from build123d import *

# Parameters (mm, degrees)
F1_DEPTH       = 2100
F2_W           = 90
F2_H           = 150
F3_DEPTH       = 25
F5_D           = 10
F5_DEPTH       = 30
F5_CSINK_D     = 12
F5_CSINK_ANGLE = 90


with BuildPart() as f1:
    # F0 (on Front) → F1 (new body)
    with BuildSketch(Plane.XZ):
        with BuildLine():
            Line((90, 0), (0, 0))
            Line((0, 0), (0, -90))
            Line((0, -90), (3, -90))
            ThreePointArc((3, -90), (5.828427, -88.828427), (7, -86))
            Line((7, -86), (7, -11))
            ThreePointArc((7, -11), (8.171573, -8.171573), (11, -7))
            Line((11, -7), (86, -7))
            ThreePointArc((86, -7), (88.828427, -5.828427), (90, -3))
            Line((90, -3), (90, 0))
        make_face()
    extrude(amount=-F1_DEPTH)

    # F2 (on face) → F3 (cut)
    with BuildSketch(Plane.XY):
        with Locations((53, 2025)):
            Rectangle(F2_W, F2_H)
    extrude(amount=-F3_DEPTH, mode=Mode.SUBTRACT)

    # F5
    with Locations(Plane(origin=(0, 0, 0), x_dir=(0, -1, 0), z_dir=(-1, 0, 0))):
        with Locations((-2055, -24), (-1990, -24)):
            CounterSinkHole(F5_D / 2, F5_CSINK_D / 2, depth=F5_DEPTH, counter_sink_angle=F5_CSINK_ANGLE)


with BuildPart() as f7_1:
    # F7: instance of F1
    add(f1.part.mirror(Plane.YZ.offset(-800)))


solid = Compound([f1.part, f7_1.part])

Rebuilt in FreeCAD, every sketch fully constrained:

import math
import FreeCAD as App
import Part
import Sketcher


def add_polygon(sketch, points):
    """Adds a closed chain of lines whose ends are joined by coincident constraints."""
    first, n = sketch.GeometryCount, len(points)
    for a, b in zip(points, points[1:] + points[:1]):
        sketch.addGeometry(Part.LineSegment(App.Vector(*a, 0), App.Vector(*b, 0)), False)
    for i in range(n):
        sketch.addConstraint(Sketcher.Constraint("Coincident", first + i, 2, first + (i + 1) % n, 1))

doc = App.newDocument("Part")
body = doc.addObject("PartDesign::Body", "Body")

sketch1 = doc.addObject("Sketcher::SketchObject", "Sketch")
body.addObject(sketch1)
sketch1.AttachmentSupport = (doc.XZ_Plane, [""])
sketch1.MapMode = "FlatFace"
sketch1.addGeometry(Part.LineSegment(App.Vector(90, 0, 0), App.Vector(0, 0, 0)), False)
sketch1.addGeometry(Part.LineSegment(App.Vector(0, 0, 0), App.Vector(0, -90, 0)), False)
sketch1.addGeometry(Part.LineSegment(App.Vector(0, -90, 0), App.Vector(3, -90, 0)), False)
sketch1.addGeometry(Part.ArcOfCircle(Part.Circle(App.Vector(3, -86, 0), App.Vector(0, 0, 1), 4), math.radians(-89.999994), math.radians(-0.000006)), False)
sketch1.addGeometry(Part.LineSegment(App.Vector(7, -86, 0), App.Vector(7, -11, 0)), False)
sketch1.addGeometry(Part.ArcOfCircle(Part.Circle(App.Vector(11, -11, 0), App.Vector(0, 0, 1), 4), math.radians(90.000006), math.radians(179.999994)), False)
sketch1.addGeometry(Part.LineSegment(App.Vector(11, -7, 0), App.Vector(86, -7, 0)), False)
sketch1.addGeometry(Part.ArcOfCircle(Part.Circle(App.Vector(86, -3, 0), App.Vector(0, 0, 1), 4), math.radians(-89.999994), math.radians(-0.000006)), False)
sketch1.addGeometry(Part.LineSegment(App.Vector(90, -3, 0), App.Vector(90, 0, 0)), False)
sketch1.addConstraint(Sketcher.Constraint("Coincident", 0, 2, 1, 1))
sketch1.addConstraint(Sketcher.Constraint("Coincident", 1, 2, 2, 1))
sketch1.addConstraint(Sketcher.Constraint("Tangent", 2, 2, 3, 1))
sketch1.addConstraint(Sketcher.Constraint("Tangent", 3, 2, 4, 1))
sketch1.addConstraint(Sketcher.Constraint("Tangent", 4, 2, 5, 2))
sketch1.addConstraint(Sketcher.Constraint("Tangent", 5, 1, 6, 1))
sketch1.addConstraint(Sketcher.Constraint("Tangent", 6, 2, 7, 1))
sketch1.addConstraint(Sketcher.Constraint("Tangent", 7, 2, 8, 1))
sketch1.addConstraint(Sketcher.Constraint("Coincident", 8, 2, 0, 1))
sketch1.addConstraint(Sketcher.Constraint("Horizontal", 0))
sketch1.addConstraint(Sketcher.Constraint("Vertical", 1))
sketch1.addConstraint(Sketcher.Constraint("Horizontal", 2))
sketch1.addConstraint(Sketcher.Constraint("Vertical", 4))
sketch1.addConstraint(Sketcher.Constraint("Horizontal", 6))
sketch1.addConstraint(Sketcher.Constraint("Vertical", 8))
sketch1.addConstraint(Sketcher.Constraint("Coincident", 0, 2, -1, 1))
sketch1.addConstraint(Sketcher.Constraint("Equal", 3, 5))
sketch1.addConstraint(Sketcher.Constraint("Equal", 5, 7))
sketch1.addConstraint(Sketcher.Constraint("Equal", 0, 1))
sketch1.addConstraint(Sketcher.Constraint("Equal", 6, 4))
sketch1.addConstraint(Sketcher.Constraint("Radius", 3, 4.0))
sketch1.addConstraint(Sketcher.Constraint("DistanceX", 0, 2, 0, 1, 90.0))
sketch1.addConstraint(Sketcher.Constraint("DistanceX", 2, 1, 2, 2, 3.0))
pad1 = doc.addObject("PartDesign::Pad", "Pad")
body.addObject(pad1)
pad1.Profile = sketch1
pad1.Length = 2100
pad1.Reversed = True

sketch2 = doc.addObject("Sketcher::SketchObject", "Sketch001")
body.addObject(sketch2)
sketch2.AttachmentSupport = (doc.XY_Plane, [""])
sketch2.MapMode = "FlatFace"
add_polygon(sketch2, [(8, 2100), (8, 1950), (98, 1950), (98, 2100)])
sketch2.addConstraint(Sketcher.Constraint("Vertical", 0))
sketch2.addConstraint(Sketcher.Constraint("Horizontal", 1))
sketch2.addConstraint(Sketcher.Constraint("Vertical", 2))
sketch2.addConstraint(Sketcher.Constraint("Horizontal", 3))
sketch2.addConstraint(Sketcher.Constraint("DistanceX", 1, 1, 1, 2, 90.0))
sketch2.addConstraint(Sketcher.Constraint("DistanceY", 0, 2, 0, 1, 150.0))
sketch2.addConstraint(Sketcher.Constraint("DistanceX", -1, 1, 0, 2, 8.0))
sketch2.addConstraint(Sketcher.Constraint("DistanceY", -1, 1, 0, 2, 1950.0))
pocket1 = doc.addObject("PartDesign::Pocket", "Pocket")
body.addObject(pocket1)
pocket1.Profile = sketch2
pocket1.Length = 25

sketch3 = doc.addObject("Sketcher::SketchObject", "Sketch002")
body.addObject(sketch3)
sketch3.AttachmentSupport = (doc.YZ_Plane, [""])
sketch3.MapMode = "FlatFace"
sketch3.addGeometry(Part.Circle(App.Vector(2055, -24, 0), App.Vector(0, 0, 1), 5), False)
sketch3.addGeometry(Part.Circle(App.Vector(1990, -24, 0), App.Vector(0, 0, 1), 5), False)
sketch3.addConstraint(Sketcher.Constraint("Equal", 0, 1))
sketch3.addConstraint(Sketcher.Constraint("Horizontal", 0, 3, 1, 3))
sketch3.addConstraint(Sketcher.Constraint("Diameter", 0, 10.0))
sketch3.addConstraint(Sketcher.Constraint("DistanceX", -1, 1, 0, 3, 2055.0))
sketch3.addConstraint(Sketcher.Constraint("DistanceY", 0, 3, -1, 1, 24.0))
sketch3.addConstraint(Sketcher.Constraint("DistanceX", -1, 1, 1, 3, 1990.0))
doc.recompute()
hole = doc.addObject("PartDesign::Hole", "Hole")
body.addObject(hole)
hole.Profile = sketch3
hole.ThreadType = "None"
hole.Diameter = 10
hole.DepthType = "Dimension"
hole.Depth = 30
hole.DrillPoint = "Flat"
hole.HoleCutType = "Countersink"
hole.HoleCutDiameter = 12
hole.HoleCutCountersinkAngle = 90
hole.Reversed = True
body2 = doc.addObject("PartDesign::Body", "Body001")
doc.recompute()

mirroring = doc.addObject("Part::Mirroring", "Mirroring")
mirroring.Source = body
mirroring.Base = App.Vector(-800, 0, 0)
mirroring.Normal = App.Vector(1, 0, 0)
body2.BaseFeature = mirroring
doc.recompute()
mirroring.Visibility = False

doc.recompute()
